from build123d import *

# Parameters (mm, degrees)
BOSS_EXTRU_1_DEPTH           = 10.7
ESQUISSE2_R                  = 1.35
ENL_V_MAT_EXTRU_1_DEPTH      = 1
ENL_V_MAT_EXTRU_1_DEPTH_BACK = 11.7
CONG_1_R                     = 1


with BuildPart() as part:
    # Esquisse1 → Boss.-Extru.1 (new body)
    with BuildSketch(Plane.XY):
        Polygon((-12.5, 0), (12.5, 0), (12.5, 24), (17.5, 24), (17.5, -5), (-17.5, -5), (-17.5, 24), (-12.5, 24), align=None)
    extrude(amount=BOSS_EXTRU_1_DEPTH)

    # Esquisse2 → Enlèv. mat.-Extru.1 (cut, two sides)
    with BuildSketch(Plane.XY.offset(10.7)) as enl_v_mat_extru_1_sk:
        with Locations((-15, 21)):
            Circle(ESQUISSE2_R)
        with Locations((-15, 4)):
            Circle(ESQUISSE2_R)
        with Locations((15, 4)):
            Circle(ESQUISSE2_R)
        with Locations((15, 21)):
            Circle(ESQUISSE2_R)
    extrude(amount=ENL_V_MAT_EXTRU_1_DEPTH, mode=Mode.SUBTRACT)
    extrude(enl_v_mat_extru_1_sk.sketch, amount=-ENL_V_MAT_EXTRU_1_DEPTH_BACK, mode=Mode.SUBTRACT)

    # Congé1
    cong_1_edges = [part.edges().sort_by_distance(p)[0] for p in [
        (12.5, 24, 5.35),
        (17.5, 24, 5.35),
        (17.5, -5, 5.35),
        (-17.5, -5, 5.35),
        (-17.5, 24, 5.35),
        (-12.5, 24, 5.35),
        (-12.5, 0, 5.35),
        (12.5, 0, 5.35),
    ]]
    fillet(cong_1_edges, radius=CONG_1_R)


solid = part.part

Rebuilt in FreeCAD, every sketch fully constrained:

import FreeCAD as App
import Part
import Sketcher

V = App.Vector
Q = App.Units.Quantity


def edges_at(feature, points):
    """Names of the edges that pass closest to the given points."""
    edges = feature.Shape.Edges
    near = lambda p: min(range(len(edges)), key=lambda i: edges[i].distToShape(Part.Vertex(*p))[0])
    return sorted({f"Edge{near(p) + 1}" for p in points})

doc = App.newDocument("Part")
body = doc.addObject("PartDesign::Body", "Body")

sketch1 = body.newObject("Sketcher::SketchObject", "Sketch")
sketch1.AttachmentSupport = (doc.getObject("XY_Plane"), [""])
sketch1.MapMode = "FlatFace"
sketch1.addGeometry([
    Part.LineSegment(V(12.5, 0, 0), V(-12.5, 0, 0)),
    Part.LineSegment(V(-12.5, 0, 0), V(-12.5, 24, 0)),
    Part.LineSegment(V(-12.5, 24, 0), V(-17.5, 24, 0)),
    Part.LineSegment(V(-17.5, 24, 0), V(-17.5, -5, 0)),
    Part.LineSegment(V(-17.5, -5, 0), V(17.5, -5, 0)),
    Part.LineSegment(V(17.5, -5, 0), V(17.5, 24, 0)),
    Part.LineSegment(V(17.5, 24, 0), V(12.5, 24, 0)),
    Part.LineSegment(V(12.5, 24, 0), V(12.5, 0, 0)),
], False)
sketch1.addConstraint([
    Sketcher.Constraint("Coincident", 0, 2, 1, 1),
    Sketcher.Constraint("Coincident", 1, 2, 2, 1),
    Sketcher.Constraint("Coincident", 2, 2, 3, 1),
    Sketcher.Constraint("Coincident", 3, 2, 4, 1),
    Sketcher.Constraint("Coincident", 4, 2, 5, 1),
    Sketcher.Constraint("Coincident", 5, 2, 6, 1),
    Sketcher.Constraint("Coincident", 6, 2, 7, 1),
    Sketcher.Constraint("Coincident", 7, 2, 0, 1),
    Sketcher.Constraint("Horizontal", 0),
    Sketcher.Constraint("Vertical", 1),
    Sketcher.Constraint("Horizontal", 2),
    Sketcher.Constraint("Vertical", 3),
    Sketcher.Constraint("Horizontal", 4),
    Sketcher.Constraint("Vertical", 5),
    Sketcher.Constraint("Horizontal", 6),
    Sketcher.Constraint("Vertical", 7),
    Sketcher.Constraint("Symmetric", 0, 2, 7, 2, -1, 1),
    Sketcher.Constraint("Symmetric", 2, 2, 5, 2, -2),
    Sketcher.Constraint("DistanceX", 0, 2, 0, 1, Q("25 mm")),
    Sketcher.Constraint("DistanceX", 2, 2, 2, 1, Q("5 mm")),
    Sketcher.Constraint("DistanceY", 1, 1, 1, 2, Q("24 mm")),
    Sketcher.Constraint("DistanceY", 3, 2, 3, 1, Q("29 mm")),
])
pad1 = body.newObject("PartDesign::Pad", "Pad")
pad1.Profile = sketch1
pad1.Length = 10.7

sketch2 = body.newObject("Sketcher::SketchObject", "Sketch001")
sketch2.AttachmentSupport = (doc.getObject("XY_Plane"), [""])
sketch2.MapMode = "FlatFace"
sketch2.AttachmentOffset = App.Placement(V(0, 0, 10.7), App.Rotation())
sketch2.addGeometry([
    Part.Circle(V(-15, 21, 0), V(0, 0, 1), 1.35),
    Part.Circle(V(-15, 4, 0), V(0, 0, 1), 1.35),
    Part.Circle(V(15, 4, 0), V(0, 0, 1), 1.35),
    Part.Circle(V(15, 21, 0), V(0, 0, 1), 1.35),
], False)
sketch2.addConstraint([
    Sketcher.Constraint("Equal", 0, 1),
    Sketcher.Constraint("Equal", 1, 2),
    Sketcher.Constraint("Equal", 2, 3),
    Sketcher.Constraint("Symmetric", 1, 3, 2, 3, -2),
    Sketcher.Constraint("Symmetric", 0, 3, 3, 3, -2),
    Sketcher.Constraint("Vertical", 0, 3, 1, 3),
    Sketcher.Constraint("Diameter", 0, Q("2.7 mm")),
    Sketcher.Constraint("DistanceX", 0, 3, -1, 1, Q("15 mm")),
    Sketcher.Constraint("DistanceY", -1, 1, 0, 3, Q("21 mm")),
    Sketcher.Constraint("DistanceY", -1, 1, 1, 3, Q("4 mm")),
])
pocket1 = body.newObject("PartDesign::Pocket", "Pocket")
pocket1.Profile = sketch2
pocket1.Type = "ThroughAll"
pocket1.Midplane = True
doc.recompute()

fillet = body.newObject("PartDesign::Fillet", "Fillet")
fillet.Base = (pocket1, edges_at(pocket1, [
    (12.5, 24, 5.35),
    (17.5, 24, 5.35),
    (17.5, -5, 5.35),
    (-17.5, -5, 5.35),
    (-17.5, 24, 5.35),
    (-12.5, 24, 5.35),
    (-12.5, 0, 5.35),
    (12.5, 0, 5.35),
]))
fillet.Radius = 1

doc.recompute()
